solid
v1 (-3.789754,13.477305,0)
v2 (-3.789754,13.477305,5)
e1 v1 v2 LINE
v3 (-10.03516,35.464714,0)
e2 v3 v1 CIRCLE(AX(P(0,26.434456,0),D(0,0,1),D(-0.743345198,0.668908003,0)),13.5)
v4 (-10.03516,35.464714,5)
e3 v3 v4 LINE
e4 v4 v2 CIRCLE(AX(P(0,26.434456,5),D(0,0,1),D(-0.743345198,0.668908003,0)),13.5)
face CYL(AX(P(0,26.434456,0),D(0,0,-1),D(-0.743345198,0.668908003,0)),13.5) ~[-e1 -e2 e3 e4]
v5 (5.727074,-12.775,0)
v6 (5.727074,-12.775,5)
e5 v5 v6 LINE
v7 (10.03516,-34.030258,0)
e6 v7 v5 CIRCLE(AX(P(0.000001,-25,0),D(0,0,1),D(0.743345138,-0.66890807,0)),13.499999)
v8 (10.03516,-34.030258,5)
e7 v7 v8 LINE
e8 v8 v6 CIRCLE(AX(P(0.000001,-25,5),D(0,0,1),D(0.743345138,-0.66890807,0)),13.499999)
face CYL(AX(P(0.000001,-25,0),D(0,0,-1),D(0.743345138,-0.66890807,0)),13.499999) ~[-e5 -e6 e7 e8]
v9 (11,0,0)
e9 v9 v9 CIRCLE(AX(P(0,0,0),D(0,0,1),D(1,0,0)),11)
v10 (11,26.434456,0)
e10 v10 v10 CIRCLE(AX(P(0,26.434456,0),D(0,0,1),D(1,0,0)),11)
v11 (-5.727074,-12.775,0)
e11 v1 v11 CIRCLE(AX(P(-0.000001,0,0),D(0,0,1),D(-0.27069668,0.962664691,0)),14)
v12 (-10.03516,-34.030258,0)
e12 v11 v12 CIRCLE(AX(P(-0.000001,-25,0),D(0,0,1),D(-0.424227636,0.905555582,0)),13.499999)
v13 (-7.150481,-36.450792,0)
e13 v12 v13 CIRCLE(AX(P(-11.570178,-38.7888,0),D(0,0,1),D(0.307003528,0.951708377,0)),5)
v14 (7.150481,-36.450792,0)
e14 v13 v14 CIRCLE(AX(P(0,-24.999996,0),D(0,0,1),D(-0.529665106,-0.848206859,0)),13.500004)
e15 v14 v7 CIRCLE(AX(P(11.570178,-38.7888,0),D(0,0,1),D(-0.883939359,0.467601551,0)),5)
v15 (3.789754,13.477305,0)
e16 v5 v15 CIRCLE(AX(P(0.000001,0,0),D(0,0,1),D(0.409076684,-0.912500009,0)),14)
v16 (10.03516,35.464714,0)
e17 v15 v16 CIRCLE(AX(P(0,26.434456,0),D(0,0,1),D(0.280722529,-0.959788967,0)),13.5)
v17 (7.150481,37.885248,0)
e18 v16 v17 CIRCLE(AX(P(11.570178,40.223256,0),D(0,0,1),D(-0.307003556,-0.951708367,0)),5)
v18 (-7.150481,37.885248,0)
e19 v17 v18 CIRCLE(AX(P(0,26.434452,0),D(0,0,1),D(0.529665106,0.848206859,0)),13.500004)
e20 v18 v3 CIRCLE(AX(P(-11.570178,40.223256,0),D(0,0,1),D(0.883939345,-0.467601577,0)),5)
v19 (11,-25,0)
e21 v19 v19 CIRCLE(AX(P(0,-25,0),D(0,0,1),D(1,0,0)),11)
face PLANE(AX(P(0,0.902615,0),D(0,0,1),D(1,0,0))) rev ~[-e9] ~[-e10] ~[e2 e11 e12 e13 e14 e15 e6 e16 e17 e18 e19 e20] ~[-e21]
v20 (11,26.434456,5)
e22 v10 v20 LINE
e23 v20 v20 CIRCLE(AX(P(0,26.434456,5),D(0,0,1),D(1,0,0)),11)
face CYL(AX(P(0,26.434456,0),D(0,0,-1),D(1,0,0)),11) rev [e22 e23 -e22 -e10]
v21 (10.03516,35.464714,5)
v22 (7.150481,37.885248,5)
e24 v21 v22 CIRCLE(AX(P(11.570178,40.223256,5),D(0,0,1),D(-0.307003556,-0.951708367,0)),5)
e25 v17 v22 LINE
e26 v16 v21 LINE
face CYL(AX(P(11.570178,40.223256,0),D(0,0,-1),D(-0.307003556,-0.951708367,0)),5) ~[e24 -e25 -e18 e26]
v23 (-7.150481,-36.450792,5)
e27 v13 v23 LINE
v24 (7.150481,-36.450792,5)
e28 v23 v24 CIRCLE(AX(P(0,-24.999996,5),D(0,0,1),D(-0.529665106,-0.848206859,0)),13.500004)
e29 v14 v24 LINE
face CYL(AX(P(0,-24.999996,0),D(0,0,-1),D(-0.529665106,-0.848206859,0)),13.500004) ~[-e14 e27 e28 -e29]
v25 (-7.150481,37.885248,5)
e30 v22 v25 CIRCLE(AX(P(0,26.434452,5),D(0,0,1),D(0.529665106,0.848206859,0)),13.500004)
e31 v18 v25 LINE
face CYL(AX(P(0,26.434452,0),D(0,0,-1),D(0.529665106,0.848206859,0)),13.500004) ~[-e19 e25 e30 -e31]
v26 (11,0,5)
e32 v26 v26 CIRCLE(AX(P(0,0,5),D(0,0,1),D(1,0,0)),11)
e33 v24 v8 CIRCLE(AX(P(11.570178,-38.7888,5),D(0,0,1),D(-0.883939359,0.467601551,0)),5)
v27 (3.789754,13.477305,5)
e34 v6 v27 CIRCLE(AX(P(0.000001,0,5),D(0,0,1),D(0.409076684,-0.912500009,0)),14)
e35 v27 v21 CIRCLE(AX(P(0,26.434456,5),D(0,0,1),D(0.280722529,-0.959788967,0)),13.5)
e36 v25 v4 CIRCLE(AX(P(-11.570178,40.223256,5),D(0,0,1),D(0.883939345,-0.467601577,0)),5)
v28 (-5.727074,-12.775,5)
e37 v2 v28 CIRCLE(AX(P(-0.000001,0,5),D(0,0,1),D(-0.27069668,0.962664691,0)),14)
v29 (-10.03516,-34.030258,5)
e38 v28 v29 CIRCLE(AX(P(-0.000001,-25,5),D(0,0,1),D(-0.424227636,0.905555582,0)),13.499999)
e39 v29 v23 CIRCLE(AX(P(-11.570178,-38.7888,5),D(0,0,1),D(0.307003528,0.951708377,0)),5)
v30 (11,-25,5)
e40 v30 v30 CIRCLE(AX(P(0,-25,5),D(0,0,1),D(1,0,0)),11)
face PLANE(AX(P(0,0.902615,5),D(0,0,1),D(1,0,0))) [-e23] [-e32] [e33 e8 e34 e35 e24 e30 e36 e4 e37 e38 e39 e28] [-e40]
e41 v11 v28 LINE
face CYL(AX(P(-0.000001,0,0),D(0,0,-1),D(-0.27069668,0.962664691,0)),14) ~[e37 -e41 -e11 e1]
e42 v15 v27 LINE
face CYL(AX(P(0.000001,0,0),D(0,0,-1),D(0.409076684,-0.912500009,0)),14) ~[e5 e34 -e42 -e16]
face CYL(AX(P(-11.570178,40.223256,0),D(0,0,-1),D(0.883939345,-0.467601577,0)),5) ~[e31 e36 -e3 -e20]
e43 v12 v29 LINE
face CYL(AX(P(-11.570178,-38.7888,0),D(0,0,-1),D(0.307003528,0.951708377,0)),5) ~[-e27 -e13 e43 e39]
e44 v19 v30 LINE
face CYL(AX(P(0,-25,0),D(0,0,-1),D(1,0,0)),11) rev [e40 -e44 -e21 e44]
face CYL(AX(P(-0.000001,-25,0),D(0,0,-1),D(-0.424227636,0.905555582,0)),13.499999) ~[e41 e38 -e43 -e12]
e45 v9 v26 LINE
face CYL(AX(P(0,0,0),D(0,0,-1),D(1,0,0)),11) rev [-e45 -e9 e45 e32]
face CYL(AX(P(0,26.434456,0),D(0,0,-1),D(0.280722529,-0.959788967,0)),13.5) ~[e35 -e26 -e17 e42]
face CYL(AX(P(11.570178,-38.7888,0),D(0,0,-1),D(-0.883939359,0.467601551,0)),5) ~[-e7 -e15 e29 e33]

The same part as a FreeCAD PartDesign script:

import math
import FreeCAD as App
import Part
import Sketcher

doc = App.newDocument("Part")
body = doc.addObject("PartDesign::Body", "Body")

# Sketch on XY plane
sketch1 = body.newObject("Sketcher::SketchObject", "Sketch")
sketch1.AttachmentSupport = (doc.getObject("XY_Plane"), [""])
sketch1.MapMode = "FlatFace"
sketch1.addGeometry(Part.ArcOfCircle(Part.Circle(App.Vector(0, 0, 0), App.Vector(0, 0, 1), 14), math.radians(-66), math.radians(74)), False)
sketch1.addGeometry(Part.ArcOfCircle(Part.Circle(App.Vector(0, 26.4, 0), App.Vector(0, 0, 1), 13.5), math.radians(-74), math.radians(42)), False)
sketch1.addGeometry(Part.ArcOfCircle(Part.Circle(App.Vector(11.6, 40.2, 0), App.Vector(0, 0, 1), 5), math.radians(-108), math.radians(208)), False)
sketch1.addGeometry(Part.ArcOfCircle(Part.Circle(App.Vector(0, 26.4, 0), App.Vector(0, 0, 1), 13.5), math.radians(58), math.radians(122)), False)
sketch1.addGeometry(Part.ArcOfCircle(Part.Circle(App.Vector(-11.6, 40.2, 0), App.Vector(0, 0, 1), 5), math.radians(-28), math.radians(288)), False)
sketch1.addGeometry(Part.ArcOfCircle(Part.Circle(App.Vector(0, 26.4, 0), App.Vector(0, 0, 1), 13.5), math.radians(138), math.radians(254)), False)
sketch1.addGeometry(Part.ArcOfCircle(Part.Circle(App.Vector(0, 0, 0), App.Vector(0, 0, 1), 14), math.radians(106), math.radians(246)), False)
sketch1.addGeometry(Part.ArcOfCircle(Part.Circle(App.Vector(0, -25, 0), App.Vector(0, 0, 1), 13.5), math.radians(115), math.radians(222)), False)
sketch1.addGeometry(Part.ArcOfCircle(Part.Circle(App.Vector(-11.6, -38.8, 0), App.Vector(0, 0, 1), 5), math.radians(72), math.radians(388)), False)
sketch1.addGeometry(Part.ArcOfCircle(Part.Circle(App.Vector(0, -25, 0), App.Vector(0, 0, 1), 13.5), math.radians(-122), math.radians(-58)), False)
sketch1.addGeometry(Part.ArcOfCircle(Part.Circle(App.Vector(11.6, -38.8, 0), App.Vector(0, 0, 1), 5), math.radians(152), math.radians(468)), False)
sketch1.addGeometry(Part.ArcOfCircle(Part.Circle(App.Vector(0, -25, 0), App.Vector(0, 0, 1), 13.5), math.radians(-42), math.radians(65)), False)
sketch1.addGeometry(Part.Circle(App.Vector(0, -25, 0), App.Vector(0, 0, 1), 11), False)
sketch1.addGeometry(Part.Circle(App.Vector(0, 0, 0), App.Vector(0, 0, 1), 11), False)
sketch1.addGeometry(Part.Circle(App.Vector(0, 26.4, 0), App.Vector(0, 0, 1), 11), False)
sketch1.addConstraint(Sketcher.Constraint("Coincident", 0, 2, 1, 1))
sketch1.addConstraint(Sketcher.Constraint("Coincident", 1, 2, 2, 1))
sketch1.addConstraint(Sketcher.Constraint("Coincident", 2, 2, 3, 1))
sketch1.addConstraint(Sketcher.Constraint("Coincident", 3, 2, 4, 1))
sketch1.addConstraint(Sketcher.Constraint("Coincident", 4, 2, 5, 1))
sketch1.addConstraint(Sketcher.Constraint("Coincident", 5, 2, 6, 1))
sketch1.addConstraint(Sketcher.Constraint("Coincident", 6, 2, 7, 1))
sketch1.addConstraint(Sketcher.Constraint("Coincident", 7, 2, 8, 1))
sketch1.addConstraint(Sketcher.Constraint("Coincident", 8, 2, 9, 1))
sketch1.addConstraint(Sketcher.Constraint("Coincident", 9, 2, 10, 1))
sketch1.addConstraint(Sketcher.Constraint("Coincident", 10, 2, 11, 1))
sketch1.addConstraint(Sketcher.Constraint("Coincident", 11, 2, 0, 1))
sketch1.addConstraint(Sketcher.Constraint("Coincident", 0, 3, -1, 1))
sketch1.addConstraint(Sketcher.Constraint("Coincident", 6, 3, -1, 1))
sketch1.addConstraint(Sketcher.Constraint("Coincident", 13, 3, -1, 1))
sketch1.addConstraint(Sketcher.Constraint("Coincident", 3, 3, 1, 3))
sketch1.addConstraint(Sketcher.Constraint("Coincident", 5, 3, 1, 3))
sketch1.addConstraint(Sketcher.Constraint("Coincident", 9, 3, 7, 3))
sketch1.addConstraint(Sketcher.Constraint("Coincident", 11, 3, 7, 3))
sketch1.addConstraint(Sketcher.Constraint("Coincident", 12, 3, 7, 3))
sketch1.addConstraint(Sketcher.Constraint("Coincident", 14, 3, 1, 3))
sketch1.addConstraint(Sketcher.Constraint("Equal", 2, 4))
sketch1.addConstraint(Sketcher.Constraint("Equal", 1, 5))
sketch1.addConstraint(Sketcher.Constraint("Equal", 0, 6))
sketch1.addConstraint(Sketcher.Constraint("Equal", 5, 7))
sketch1.addConstraint(Sketcher.Constraint("Equal", 4, 8))
sketch1.addConstraint(Sketcher.Constraint("Equal", 3, 9))
sketch1.addConstraint(Sketcher.Constraint("Equal", 8, 10))
sketch1.addConstraint(Sketcher.Constraint("Equal", 7, 11))
sketch1.addConstraint(Sketcher.Constraint("Equal", 12, 13))
sketch1.addConstraint(Sketcher.Constraint("Equal", 13, 14))
sketch1.addConstraint(Sketcher.Constraint("Symmetric", 2, 3, 4, 3, -2))
sketch1.addConstraint(Sketcher.Constraint("Symmetric", 8, 3, 10, 3, -2))
sketch1.addConstraint(Sketcher.Constraint("PointOnObject", 1, 3, -2))
sketch1.addConstraint(Sketcher.Constraint("PointOnObject", 7, 3, -2))
sketch1.addConstraint(Sketcher.Constraint("Vertical", 4, 3, 8, 3))
sketch1.addConstraint(Sketcher.Constraint("Vertical", 4, 2, 7, 2))
sketch1.addConstraint(Sketcher.Constraint("Diameter", 12, 22.0))
sketch1.addConstraint(Sketcher.Constraint("Radius", 0, 14.0))
sketch1.addConstraint(Sketcher.Constraint("Radius", 2, 5.0))
sketch1.addConstraint(Sketcher.Constraint("Radius", 1, 13.5))
sketch1.addConstraint(Sketcher.Constraint("DistanceY", 7, 3, -1, 1, 25.0))
sketch1.addConstraint(Sketcher.Constraint("Radius", 3, 13.500004))
sketch1.addConstraint(Sketcher.Constraint("DistanceY", 8, 3, -1, 1, 38.7888))
sketch1.addConstraint(Sketcher.Constraint("DistanceX", -1, 1, 1, 2, 10.03516))
sketch1.addConstraint(Sketcher.Constraint("DistanceY", -1, 1, 2, 2, 37.885248))
pad1 = body.newObject("PartDesign::Pad", "Pad")
pad1.Profile = sketch1
pad1.Length = 5

doc.recompute()
